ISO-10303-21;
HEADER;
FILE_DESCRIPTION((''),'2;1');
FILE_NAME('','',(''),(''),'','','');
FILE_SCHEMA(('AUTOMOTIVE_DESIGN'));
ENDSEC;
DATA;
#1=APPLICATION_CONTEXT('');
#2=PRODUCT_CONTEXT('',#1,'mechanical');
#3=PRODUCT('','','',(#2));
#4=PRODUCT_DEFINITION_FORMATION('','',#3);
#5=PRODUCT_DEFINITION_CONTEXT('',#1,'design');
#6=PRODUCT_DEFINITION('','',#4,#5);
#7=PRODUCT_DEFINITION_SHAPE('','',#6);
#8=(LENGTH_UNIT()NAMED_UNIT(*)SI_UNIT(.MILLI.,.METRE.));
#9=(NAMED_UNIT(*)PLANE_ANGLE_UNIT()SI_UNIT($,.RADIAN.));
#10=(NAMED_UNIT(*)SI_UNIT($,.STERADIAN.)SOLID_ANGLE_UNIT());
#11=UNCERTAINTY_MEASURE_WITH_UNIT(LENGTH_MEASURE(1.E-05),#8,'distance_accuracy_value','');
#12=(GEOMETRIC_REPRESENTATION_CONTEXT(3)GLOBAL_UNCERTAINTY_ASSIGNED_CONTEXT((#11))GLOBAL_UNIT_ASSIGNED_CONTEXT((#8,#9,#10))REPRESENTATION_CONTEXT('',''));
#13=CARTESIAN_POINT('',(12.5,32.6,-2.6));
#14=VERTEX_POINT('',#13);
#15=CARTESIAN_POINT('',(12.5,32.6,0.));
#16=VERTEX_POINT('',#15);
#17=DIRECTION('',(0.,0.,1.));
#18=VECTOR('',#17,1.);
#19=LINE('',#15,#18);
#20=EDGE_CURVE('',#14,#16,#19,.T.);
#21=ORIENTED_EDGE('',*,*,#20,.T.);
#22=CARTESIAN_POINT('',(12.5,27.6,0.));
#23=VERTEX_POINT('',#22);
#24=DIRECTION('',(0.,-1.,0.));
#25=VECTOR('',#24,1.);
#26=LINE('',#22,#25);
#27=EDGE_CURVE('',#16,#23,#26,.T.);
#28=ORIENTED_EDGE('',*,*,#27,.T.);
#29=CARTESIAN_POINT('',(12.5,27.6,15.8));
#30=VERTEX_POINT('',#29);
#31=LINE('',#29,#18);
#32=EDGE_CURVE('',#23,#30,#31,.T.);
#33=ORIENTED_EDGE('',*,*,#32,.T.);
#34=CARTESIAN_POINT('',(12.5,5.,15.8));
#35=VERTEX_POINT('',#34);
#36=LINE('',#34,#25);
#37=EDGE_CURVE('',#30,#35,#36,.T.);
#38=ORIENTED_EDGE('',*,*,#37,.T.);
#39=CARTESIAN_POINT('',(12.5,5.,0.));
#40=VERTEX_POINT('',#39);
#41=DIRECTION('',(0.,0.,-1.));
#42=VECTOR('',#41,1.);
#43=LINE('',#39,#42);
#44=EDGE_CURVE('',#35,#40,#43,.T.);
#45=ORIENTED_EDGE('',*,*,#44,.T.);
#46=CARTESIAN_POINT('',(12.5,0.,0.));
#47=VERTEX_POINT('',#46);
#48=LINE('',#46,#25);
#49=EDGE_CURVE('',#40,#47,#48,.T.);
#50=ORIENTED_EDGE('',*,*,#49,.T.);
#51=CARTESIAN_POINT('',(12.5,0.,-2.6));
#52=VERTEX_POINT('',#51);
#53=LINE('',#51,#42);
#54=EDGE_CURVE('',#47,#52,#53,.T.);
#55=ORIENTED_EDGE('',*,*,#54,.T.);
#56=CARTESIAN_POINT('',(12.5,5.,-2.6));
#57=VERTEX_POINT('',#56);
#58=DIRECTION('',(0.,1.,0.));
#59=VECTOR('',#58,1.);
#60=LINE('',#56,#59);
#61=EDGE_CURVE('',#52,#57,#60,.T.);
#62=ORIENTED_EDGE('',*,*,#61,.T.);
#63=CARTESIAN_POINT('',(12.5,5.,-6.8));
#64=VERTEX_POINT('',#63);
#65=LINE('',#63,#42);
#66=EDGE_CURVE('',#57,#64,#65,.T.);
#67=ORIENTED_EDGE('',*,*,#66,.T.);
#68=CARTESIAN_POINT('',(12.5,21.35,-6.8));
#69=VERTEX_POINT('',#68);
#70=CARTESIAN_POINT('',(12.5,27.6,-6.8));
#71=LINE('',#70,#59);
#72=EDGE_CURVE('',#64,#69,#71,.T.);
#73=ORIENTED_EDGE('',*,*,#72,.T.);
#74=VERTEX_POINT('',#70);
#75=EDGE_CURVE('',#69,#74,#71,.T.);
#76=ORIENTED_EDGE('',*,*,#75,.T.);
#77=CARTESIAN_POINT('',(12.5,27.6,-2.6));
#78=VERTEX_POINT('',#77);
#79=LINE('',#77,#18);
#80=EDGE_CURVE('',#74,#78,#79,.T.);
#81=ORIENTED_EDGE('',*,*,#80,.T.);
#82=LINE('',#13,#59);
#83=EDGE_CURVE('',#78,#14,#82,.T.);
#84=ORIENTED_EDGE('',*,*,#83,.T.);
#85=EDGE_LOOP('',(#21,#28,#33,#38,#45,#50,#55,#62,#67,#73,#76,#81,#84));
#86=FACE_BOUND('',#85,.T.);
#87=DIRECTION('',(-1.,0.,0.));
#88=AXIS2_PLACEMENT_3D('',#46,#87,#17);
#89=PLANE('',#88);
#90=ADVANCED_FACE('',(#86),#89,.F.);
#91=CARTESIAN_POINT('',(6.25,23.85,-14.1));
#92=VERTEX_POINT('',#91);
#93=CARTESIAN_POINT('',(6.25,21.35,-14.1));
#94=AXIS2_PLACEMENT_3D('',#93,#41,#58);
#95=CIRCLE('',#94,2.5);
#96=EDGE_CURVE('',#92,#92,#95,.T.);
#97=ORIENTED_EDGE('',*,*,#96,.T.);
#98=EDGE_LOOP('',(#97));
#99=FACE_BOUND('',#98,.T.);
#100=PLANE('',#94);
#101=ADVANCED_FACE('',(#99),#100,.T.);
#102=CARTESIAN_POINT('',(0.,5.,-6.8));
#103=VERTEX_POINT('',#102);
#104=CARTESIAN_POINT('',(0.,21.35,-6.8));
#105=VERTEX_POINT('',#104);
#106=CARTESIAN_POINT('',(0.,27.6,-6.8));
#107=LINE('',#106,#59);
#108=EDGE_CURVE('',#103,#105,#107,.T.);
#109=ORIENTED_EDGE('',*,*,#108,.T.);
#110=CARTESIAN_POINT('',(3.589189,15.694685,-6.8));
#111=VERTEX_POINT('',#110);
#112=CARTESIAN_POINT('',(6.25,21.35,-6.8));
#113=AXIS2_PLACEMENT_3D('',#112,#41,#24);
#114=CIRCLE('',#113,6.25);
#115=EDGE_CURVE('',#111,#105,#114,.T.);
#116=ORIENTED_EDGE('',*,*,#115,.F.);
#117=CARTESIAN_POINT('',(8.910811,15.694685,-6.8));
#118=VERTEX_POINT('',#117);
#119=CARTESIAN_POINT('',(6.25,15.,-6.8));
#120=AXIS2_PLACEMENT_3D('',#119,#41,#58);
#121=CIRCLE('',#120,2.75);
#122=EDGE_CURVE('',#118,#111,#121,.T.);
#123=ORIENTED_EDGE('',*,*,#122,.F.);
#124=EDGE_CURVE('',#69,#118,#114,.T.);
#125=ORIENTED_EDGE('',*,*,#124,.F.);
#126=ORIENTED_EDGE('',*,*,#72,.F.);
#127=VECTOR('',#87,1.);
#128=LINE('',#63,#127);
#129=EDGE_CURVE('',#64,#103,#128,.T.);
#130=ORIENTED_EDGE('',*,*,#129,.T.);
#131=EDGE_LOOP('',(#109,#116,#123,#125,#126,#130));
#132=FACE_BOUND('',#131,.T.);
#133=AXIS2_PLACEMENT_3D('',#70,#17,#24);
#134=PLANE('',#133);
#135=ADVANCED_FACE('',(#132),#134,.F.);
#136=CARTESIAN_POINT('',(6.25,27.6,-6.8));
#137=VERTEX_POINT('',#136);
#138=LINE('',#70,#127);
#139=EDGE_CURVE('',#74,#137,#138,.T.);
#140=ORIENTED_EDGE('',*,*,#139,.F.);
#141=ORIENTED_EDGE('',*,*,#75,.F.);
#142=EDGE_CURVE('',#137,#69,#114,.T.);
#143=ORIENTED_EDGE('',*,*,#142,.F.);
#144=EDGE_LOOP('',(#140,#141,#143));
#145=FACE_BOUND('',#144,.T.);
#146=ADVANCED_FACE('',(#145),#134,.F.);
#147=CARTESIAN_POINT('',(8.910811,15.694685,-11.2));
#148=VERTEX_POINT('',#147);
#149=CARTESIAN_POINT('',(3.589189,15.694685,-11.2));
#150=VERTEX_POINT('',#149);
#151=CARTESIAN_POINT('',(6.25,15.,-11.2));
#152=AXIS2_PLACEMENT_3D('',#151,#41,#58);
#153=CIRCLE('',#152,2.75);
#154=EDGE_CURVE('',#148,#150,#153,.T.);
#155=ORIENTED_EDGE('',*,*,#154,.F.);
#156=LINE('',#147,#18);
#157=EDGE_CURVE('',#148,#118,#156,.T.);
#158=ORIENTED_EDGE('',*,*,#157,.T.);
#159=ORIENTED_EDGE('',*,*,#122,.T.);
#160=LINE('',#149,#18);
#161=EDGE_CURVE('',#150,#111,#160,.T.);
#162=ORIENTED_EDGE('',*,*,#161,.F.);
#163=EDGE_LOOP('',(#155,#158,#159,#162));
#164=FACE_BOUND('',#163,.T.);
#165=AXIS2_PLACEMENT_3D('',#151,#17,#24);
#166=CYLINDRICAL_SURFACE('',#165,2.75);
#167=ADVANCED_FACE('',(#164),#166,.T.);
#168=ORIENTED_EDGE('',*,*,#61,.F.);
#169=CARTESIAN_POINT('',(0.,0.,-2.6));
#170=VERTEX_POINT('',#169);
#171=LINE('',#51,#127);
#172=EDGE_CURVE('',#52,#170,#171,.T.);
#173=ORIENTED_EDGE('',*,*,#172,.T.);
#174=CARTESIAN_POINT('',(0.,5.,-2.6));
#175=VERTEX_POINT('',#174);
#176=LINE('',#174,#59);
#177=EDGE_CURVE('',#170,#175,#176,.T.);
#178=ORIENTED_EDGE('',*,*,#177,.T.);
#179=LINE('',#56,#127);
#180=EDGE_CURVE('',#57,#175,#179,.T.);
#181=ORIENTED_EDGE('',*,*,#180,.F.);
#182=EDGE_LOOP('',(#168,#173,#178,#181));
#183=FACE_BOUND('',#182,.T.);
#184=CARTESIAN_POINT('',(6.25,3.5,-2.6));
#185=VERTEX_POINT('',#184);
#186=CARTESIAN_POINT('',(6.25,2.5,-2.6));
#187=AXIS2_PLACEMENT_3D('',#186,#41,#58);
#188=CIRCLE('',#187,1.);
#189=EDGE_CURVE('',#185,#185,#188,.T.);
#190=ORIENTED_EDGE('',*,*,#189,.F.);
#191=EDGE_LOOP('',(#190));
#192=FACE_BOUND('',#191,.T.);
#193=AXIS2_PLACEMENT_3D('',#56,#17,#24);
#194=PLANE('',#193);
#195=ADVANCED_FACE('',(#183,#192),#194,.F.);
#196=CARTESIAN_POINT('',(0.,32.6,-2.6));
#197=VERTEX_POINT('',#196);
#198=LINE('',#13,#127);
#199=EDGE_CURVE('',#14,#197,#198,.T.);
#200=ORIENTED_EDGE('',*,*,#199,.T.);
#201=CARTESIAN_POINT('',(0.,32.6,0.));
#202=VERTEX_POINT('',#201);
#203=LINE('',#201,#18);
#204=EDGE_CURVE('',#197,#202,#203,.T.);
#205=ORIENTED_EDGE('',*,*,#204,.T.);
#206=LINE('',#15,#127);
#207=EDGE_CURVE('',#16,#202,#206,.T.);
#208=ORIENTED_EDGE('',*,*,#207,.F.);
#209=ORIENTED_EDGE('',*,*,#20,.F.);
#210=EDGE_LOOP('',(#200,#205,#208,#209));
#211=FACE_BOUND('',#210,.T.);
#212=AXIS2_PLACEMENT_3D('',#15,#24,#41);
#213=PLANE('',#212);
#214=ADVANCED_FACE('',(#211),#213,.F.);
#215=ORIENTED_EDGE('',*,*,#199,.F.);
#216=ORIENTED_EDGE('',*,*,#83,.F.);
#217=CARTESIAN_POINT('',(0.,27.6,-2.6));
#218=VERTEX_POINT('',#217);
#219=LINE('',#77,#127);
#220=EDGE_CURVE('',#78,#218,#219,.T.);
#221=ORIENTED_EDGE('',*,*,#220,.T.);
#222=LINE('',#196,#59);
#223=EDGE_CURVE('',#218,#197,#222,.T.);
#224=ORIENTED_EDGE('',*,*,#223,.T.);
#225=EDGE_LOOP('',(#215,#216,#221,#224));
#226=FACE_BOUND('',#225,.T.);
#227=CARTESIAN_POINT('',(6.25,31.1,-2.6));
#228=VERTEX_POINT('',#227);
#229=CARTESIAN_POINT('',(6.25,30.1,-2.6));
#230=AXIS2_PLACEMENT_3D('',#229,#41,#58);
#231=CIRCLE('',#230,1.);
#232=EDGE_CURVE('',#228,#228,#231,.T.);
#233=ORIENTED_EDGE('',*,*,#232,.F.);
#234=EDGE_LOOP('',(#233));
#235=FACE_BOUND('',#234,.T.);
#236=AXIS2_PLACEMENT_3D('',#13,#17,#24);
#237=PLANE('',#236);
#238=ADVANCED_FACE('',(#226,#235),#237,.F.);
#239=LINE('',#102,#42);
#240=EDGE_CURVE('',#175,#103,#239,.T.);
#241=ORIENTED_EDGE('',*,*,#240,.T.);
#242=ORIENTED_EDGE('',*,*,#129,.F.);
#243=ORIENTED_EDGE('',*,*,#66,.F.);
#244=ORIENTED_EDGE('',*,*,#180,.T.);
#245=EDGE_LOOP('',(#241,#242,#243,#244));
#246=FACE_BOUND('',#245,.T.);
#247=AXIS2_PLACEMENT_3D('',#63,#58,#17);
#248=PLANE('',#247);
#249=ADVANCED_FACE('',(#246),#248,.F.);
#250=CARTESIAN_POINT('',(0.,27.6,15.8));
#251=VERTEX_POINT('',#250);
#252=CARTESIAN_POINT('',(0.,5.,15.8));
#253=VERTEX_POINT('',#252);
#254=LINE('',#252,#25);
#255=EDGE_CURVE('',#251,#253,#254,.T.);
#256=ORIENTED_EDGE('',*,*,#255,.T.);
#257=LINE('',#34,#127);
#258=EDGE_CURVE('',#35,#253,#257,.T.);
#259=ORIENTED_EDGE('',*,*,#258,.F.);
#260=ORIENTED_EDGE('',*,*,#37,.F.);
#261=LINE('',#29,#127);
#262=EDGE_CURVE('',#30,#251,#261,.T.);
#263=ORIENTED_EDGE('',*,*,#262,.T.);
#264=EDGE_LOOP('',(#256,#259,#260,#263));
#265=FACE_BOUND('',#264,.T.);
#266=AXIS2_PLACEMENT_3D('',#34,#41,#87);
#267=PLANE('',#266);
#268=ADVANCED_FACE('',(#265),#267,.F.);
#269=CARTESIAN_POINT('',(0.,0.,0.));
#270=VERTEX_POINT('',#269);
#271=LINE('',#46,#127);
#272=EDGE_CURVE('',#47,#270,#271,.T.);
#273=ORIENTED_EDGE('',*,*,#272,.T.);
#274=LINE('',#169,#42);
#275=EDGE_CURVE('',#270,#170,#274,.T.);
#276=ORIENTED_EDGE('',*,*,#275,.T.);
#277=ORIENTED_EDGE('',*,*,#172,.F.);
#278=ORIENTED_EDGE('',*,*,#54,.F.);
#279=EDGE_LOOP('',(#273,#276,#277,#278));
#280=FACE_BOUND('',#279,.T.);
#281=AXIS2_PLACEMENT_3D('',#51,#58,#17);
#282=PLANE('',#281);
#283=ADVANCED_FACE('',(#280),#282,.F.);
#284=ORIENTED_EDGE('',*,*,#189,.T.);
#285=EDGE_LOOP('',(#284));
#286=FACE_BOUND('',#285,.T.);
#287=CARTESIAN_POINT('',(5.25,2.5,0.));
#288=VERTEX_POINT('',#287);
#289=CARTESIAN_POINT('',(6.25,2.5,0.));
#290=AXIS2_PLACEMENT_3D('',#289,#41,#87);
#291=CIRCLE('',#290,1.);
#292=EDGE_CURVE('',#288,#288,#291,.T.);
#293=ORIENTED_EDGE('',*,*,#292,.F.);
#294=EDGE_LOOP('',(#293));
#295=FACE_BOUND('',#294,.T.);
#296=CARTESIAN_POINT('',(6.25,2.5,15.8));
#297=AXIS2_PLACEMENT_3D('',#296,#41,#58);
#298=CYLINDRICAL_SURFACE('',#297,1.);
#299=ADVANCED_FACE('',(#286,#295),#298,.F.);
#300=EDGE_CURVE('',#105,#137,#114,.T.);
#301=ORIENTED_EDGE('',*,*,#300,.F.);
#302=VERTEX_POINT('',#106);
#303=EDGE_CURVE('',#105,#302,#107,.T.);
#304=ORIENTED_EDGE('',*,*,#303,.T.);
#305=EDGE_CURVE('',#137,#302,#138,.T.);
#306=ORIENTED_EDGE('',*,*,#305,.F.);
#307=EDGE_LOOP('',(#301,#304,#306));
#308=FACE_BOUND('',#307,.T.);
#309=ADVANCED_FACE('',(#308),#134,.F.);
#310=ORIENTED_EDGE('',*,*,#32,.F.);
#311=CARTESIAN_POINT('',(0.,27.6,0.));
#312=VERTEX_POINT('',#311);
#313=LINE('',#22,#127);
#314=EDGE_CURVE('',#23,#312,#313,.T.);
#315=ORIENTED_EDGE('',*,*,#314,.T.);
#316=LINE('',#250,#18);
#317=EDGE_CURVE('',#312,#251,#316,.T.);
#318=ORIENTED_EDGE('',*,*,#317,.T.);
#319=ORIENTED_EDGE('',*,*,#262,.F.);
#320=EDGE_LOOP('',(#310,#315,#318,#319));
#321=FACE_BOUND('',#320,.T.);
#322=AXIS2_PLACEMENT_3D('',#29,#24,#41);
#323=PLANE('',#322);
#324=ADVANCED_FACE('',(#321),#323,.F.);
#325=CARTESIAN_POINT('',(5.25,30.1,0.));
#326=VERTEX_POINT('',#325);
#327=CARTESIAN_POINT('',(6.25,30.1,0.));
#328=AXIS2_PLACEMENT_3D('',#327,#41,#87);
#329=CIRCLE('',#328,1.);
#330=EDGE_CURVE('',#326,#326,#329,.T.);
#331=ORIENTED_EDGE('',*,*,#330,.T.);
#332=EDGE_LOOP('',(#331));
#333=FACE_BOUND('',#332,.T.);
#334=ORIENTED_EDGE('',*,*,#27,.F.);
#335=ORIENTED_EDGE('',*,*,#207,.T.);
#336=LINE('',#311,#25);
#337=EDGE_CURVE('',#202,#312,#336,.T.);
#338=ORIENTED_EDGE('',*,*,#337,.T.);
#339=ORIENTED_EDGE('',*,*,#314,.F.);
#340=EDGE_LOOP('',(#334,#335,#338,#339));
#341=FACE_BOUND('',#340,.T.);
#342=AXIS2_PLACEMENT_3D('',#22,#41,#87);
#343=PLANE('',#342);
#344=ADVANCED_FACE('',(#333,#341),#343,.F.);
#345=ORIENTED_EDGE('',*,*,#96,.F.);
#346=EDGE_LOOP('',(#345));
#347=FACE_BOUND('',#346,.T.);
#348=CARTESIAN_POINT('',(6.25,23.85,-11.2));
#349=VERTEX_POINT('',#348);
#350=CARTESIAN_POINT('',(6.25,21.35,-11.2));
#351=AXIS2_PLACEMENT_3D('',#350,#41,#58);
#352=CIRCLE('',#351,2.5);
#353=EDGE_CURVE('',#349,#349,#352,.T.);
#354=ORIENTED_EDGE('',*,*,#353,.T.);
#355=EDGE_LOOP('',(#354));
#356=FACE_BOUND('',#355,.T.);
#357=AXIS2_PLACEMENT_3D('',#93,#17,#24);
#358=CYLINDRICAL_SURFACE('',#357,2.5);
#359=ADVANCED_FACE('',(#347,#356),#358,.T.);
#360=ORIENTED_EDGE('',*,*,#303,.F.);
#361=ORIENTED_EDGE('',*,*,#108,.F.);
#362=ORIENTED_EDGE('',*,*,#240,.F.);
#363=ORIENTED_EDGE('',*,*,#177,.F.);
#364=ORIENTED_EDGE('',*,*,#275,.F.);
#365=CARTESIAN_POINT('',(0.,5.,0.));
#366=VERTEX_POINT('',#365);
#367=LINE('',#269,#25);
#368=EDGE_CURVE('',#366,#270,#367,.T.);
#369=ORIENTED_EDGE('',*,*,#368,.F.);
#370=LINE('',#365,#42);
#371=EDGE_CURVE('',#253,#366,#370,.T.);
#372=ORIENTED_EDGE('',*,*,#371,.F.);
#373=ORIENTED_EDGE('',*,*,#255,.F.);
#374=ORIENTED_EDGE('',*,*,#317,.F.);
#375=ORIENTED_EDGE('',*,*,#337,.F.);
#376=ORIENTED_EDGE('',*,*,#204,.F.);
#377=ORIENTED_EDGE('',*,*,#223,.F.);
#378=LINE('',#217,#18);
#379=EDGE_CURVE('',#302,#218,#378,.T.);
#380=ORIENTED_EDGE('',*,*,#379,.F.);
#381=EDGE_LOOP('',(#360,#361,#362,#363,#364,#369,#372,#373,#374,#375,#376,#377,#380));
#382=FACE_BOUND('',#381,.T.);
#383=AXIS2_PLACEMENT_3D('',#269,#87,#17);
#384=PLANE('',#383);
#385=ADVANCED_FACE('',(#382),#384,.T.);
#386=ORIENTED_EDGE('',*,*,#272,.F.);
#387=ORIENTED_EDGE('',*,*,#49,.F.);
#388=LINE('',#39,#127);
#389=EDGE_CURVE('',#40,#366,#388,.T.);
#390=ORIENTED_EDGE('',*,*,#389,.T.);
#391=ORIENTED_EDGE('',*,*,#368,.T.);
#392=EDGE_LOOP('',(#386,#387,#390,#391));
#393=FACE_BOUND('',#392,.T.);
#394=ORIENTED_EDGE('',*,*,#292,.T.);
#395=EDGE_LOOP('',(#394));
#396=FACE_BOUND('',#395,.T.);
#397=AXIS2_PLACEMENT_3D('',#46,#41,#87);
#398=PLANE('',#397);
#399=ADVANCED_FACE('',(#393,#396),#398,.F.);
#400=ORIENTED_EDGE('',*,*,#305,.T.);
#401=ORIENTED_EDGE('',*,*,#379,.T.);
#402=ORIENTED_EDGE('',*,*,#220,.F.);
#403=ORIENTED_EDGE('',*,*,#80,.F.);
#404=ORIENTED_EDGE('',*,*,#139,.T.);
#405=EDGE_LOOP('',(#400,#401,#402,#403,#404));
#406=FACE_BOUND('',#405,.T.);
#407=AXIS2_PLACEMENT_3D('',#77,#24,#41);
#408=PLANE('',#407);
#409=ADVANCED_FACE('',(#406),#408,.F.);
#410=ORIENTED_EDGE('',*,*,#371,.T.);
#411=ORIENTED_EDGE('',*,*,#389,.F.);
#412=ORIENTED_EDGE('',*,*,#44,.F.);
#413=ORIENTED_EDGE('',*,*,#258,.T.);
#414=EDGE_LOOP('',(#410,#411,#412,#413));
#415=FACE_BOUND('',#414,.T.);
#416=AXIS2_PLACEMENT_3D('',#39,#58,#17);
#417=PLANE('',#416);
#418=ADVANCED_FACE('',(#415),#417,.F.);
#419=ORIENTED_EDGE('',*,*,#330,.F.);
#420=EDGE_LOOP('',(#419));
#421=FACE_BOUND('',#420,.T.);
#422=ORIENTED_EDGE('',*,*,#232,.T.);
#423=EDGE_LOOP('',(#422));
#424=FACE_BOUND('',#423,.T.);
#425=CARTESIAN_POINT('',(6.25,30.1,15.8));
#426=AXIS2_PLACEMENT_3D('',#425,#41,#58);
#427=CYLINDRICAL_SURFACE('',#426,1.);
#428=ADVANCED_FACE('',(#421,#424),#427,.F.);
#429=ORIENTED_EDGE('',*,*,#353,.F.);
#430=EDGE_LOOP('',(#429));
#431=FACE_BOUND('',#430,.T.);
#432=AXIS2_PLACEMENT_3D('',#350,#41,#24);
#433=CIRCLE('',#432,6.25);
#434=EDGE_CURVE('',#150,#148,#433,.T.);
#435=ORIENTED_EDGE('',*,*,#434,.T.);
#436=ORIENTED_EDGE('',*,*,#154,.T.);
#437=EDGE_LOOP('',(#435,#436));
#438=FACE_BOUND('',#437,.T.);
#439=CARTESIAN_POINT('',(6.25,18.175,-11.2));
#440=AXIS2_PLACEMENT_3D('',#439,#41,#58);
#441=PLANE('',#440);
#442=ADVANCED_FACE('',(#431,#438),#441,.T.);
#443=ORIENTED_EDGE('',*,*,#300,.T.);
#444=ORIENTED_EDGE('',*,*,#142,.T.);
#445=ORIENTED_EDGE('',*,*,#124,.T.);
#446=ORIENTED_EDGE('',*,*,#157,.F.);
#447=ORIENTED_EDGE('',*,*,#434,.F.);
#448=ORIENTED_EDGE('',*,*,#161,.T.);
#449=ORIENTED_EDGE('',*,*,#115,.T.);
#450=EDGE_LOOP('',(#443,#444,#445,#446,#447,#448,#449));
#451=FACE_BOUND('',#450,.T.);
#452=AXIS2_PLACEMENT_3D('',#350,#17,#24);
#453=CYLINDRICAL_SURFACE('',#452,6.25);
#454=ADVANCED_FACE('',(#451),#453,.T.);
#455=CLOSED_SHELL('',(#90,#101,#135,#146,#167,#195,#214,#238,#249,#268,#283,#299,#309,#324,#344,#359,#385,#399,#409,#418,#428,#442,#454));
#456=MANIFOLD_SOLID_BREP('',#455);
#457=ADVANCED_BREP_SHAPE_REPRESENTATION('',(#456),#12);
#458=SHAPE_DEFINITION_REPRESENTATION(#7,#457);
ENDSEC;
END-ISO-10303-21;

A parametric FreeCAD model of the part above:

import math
import FreeCAD as App
import Part
import Sketcher
from FreeCAD import Vector

doc = App.newDocument("Part")
body = doc.addObject("PartDesign::Body", "Body")

# Sketch on YZ plane
sketch1 = body.newObject("Sketcher::SketchObject", "Sketch")
sketch1.AttachmentSupport = (doc.getObject("YZ_Plane"), [""])
sketch1.MapMode = "FlatFace"
sketch1.addGeometry([
    Part.LineSegment(Vector(5, 0, 0), Vector(0, 0, 0)),  # 0
    Part.LineSegment(Vector(0, 0, 0), Vector(0, -2.6, 0)),  # 1
    Part.LineSegment(Vector(0, -2.6, 0), Vector(5, -2.6, 0)),  # 2
    Part.LineSegment(Vector(5, -2.6, 0), Vector(5, -6.8, 0)),  # 3
    Part.LineSegment(Vector(5, -6.8, 0), Vector(27.6, -6.8, 0)),  # 4
    Part.LineSegment(Vector(27.6, -6.8, 0), Vector(27.6, -2.6, 0)),  # 5
    Part.LineSegment(Vector(27.6, -2.6, 0), Vector(32.6, -2.6, 0)),  # 6
    Part.LineSegment(Vector(32.6, -2.6, 0), Vector(32.6, 0, 0)),  # 7
    Part.LineSegment(Vector(32.6, 0, 0), Vector(27.6, 0, 0)),  # 8
    Part.LineSegment(Vector(27.6, 0, 0), Vector(27.6, 15.8, 0)),  # 9
    Part.LineSegment(Vector(27.6, 15.8, 0), Vector(5, 15.8, 0)),  # 10
    Part.LineSegment(Vector(5, 15.8, 0), Vector(5, 0, 0)),  # 11
], False)
sketch1.addConstraint([
    Sketcher.Constraint("Coincident", 0, 2, 1, 1),
    Sketcher.Constraint("Coincident", 1, 2, 2, 1),
    Sketcher.Constraint("Coincident", 2, 2, 3, 1),
    Sketcher.Constraint("Coincident", 3, 2, 4, 1),
    Sketcher.Constraint("Coincident", 4, 2, 5, 1),
    Sketcher.Constraint("Coincident", 5, 2, 6, 1),
    Sketcher.Constraint("Coincident", 6, 2, 7, 1),
    Sketcher.Constraint("Coincident", 7, 2, 8, 1),
    Sketcher.Constraint("Coincident", 8, 2, 9, 1),
    Sketcher.Constraint("Coincident", 9, 2, 10, 1),
    Sketcher.Constraint("Coincident", 10, 2, 11, 1),
    Sketcher.Constraint("Coincident", 11, 2, 0, 1),
    Sketcher.Constraint("Horizontal", 0),
    Sketcher.Constraint("Vertical", 1),
    Sketcher.Constraint("Horizontal", 2),
    Sketcher.Constraint("Vertical", 3),
    Sketcher.Constraint("Horizontal", 4),
    Sketcher.Constraint("Vertical", 5),
    Sketcher.Constraint("Horizontal", 6),
    Sketcher.Constraint("Vertical", 7),
    Sketcher.Constraint("Horizontal", 8),
    Sketcher.Constraint("Vertical", 9),
    Sketcher.Constraint("Horizontal", 10),
    Sketcher.Constraint("Vertical", 11),
    Sketcher.Constraint("Coincident", 0, 2, -1, 1),
    Sketcher.Constraint("PointOnObject", 7, 2, -1),
    Sketcher.Constraint("Horizontal", 2, 2, 5, 2),
    Sketcher.Constraint("Vertical", 5, 2, 8, 2),
    Sketcher.Constraint("Vertical", 3, 2, 10, 2),
    Sketcher.Constraint("Equal", 2, 6),
    Sketcher.Constraint("DistanceX", 0, 2, 0, 1, 5.0),
    Sketcher.Constraint("DistanceX", 4, 1, 4, 2, 22.6),
    Sketcher.Constraint("DistanceY", 1, 2, 1, 1, 2.6),
    Sketcher.Constraint("DistanceY", 3, 2, 3, 1, 4.2),
    Sketcher.Constraint("DistanceY", 9, 1, 9, 2, 15.8),
])
pad1 = body.newObject("PartDesign::Pad", "Pad")
pad1.Profile = sketch1
pad1.Length = 12.5

# Sketch on XY plane
sketch2 = body.newObject("Sketcher::SketchObject", "Sketch001")
sketch2.AttachmentSupport = (doc.getObject("XY_Plane"), [""])
sketch2.MapMode = "FlatFace"
sketch2.AttachmentOffset = App.Placement(Vector(0, 0, -6.8), App.Rotation())
sketch2.addGeometry([
    Part.ArcOfCircle(Part.Circle(Vector(6.2, 21.4, 0), Vector(0, 0, 1), 6.2), math.radians(-65), math.radians(245)),
    Part.ArcOfCircle(Part.Circle(Vector(6.2, 15, 0), Vector(0, 0, 1), 2.8), math.radians(165), math.radians(375)),
], False)
sketch2.addConstraint([
    Sketcher.Constraint("Coincident", 0, 1, 1, 2),
    Sketcher.Constraint("Coincident", 1, 1, 0, 2),
    Sketcher.Constraint("Horizontal", 0, 1, 1, 1),
    Sketcher.Constraint("Radius", 0, 6.25),
    Sketcher.Constraint("Radius", 1, 2.75),
    Sketcher.Constraint("DistanceY", -1, 1, 1, 3, 15.0),
    Sketcher.Constraint("DistanceX", -1, 1, 0, 3, 6.25),
    Sketcher.Constraint("DistanceY", -1, 1, 0, 3, 21.35),
])
pad2 = body.newObject("PartDesign::Pad", "Pad001")
pad2.Profile = sketch2
pad2.Length = 4.4
pad2.Reversed = True

# Sketch on XY plane
sketch3 = body.newObject("Sketcher::SketchObject", "Sketch002")
sketch3.AttachmentSupport = (doc.getObject("XY_Plane"), [""])
sketch3.MapMode = "FlatFace"
sketch3.AttachmentOffset = App.Placement(Vector(0, 0, -11.2), App.Rotation())
sketch3.addGeometry(Part.Circle(Vector(6.2, 21.4, 0), Vector(0, 0, 1), 2.5), False)
sketch3.addConstraint([
    Sketcher.Constraint("Diameter", 0, 5.0),
    Sketcher.Constraint("DistanceX", -1, 1, 0, 3, 6.25),
    Sketcher.Constraint("DistanceY", -1, 1, 0, 3, 21.35),
])
pad3 = body.newObject("PartDesign::Pad", "Pad002")
pad3.Profile = sketch3
pad3.Length = 2.9
pad3.Reversed = True

# Sketch on XY plane
sketch4 = body.newObject("Sketcher::SketchObject", "Sketch003")
sketch4.AttachmentSupport = (doc.getObject("XY_Plane"), [""])
sketch4.MapMode = "FlatFace"
sketch4.AttachmentOffset = App.Placement(Vector(0, 0, -2.6), App.Rotation())
sketch4.addGeometry([
    Part.Circle(Vector(6.2, 30.1, 0), Vector(0, 0, 1), 1),
    Part.Circle(Vector(6.2, 2.5, 0), Vector(0, 0, 1), 1),
], False)
sketch4.addConstraint([
    Sketcher.Constraint("Equal", 0, 1),
    Sketcher.Constraint("Vertical", 0, 3, 1, 3),
    Sketcher.Constraint("Diameter", 0, 2.0),
    Sketcher.Constraint("DistanceY", -1, 1, 0, 3, 30.1),
    Sketcher.Constraint("DistanceY", -1, 1, 1, 3, 2.5),
    Sketcher.Constraint("DistanceX", -1, 1, 0, 3, 6.25),
])
pocket1 = body.newObject("PartDesign::Pocket", "Pocket")
pocket1.Profile = sketch4
pocket1.Type = "ThroughAll"
pocket1.Reversed = True

doc.recompute()
